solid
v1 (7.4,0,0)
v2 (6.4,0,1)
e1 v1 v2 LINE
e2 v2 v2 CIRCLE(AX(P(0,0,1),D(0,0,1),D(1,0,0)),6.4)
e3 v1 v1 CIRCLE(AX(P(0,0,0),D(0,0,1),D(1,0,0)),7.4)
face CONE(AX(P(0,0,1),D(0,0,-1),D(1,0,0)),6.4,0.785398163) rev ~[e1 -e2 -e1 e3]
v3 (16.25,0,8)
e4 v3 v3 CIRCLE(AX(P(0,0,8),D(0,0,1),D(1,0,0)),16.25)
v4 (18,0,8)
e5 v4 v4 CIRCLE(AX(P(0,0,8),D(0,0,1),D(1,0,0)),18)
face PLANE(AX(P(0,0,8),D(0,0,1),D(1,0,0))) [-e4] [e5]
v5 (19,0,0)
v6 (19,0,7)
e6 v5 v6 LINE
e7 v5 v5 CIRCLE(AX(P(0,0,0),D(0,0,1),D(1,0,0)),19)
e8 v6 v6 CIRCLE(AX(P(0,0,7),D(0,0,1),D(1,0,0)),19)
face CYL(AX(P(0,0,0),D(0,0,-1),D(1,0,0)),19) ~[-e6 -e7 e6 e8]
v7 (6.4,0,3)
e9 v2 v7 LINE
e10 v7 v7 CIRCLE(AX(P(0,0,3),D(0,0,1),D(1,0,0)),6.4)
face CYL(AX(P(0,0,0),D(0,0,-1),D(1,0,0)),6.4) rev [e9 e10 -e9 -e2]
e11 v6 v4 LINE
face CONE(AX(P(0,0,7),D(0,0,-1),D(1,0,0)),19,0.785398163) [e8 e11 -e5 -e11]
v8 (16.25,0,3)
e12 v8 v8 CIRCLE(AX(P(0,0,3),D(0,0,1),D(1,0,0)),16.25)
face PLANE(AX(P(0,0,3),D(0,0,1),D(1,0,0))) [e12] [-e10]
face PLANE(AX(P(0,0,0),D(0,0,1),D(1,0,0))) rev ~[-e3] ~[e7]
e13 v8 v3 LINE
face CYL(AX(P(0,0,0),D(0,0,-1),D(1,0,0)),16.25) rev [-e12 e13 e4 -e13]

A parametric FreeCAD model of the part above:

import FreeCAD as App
import Part
import Sketcher


def edges_at(feature, points):
    """Names of the edges that pass closest to the given points."""
    edges = feature.Shape.Edges
    near = lambda p: min(range(len(edges)), key=lambda i: edges[i].distToShape(Part.Vertex(*p))[0])
    return sorted({f"Edge{near(p) + 1}" for p in points})

doc = App.newDocument("Part")
body = doc.addObject("PartDesign::Body", "Body")

sketch1 = body.newObject("Sketcher::SketchObject", "Sketch")
sketch1.AttachmentSupport = (doc.getObject("XY_Plane"), [""])
sketch1.MapMode = "FlatFace"
sketch1.addGeometry([
    Part.Circle(App.Vector(0, 0, 0), App.Vector(0, 0, 1), 19),
    Part.Circle(App.Vector(0, 0, 0), App.Vector(0, 0, 1), 16),
], False)
sketch1.addConstraint([
    Sketcher.Constraint("Coincident", 0, 3, -1, 1),
    Sketcher.Constraint("Coincident", 1, 3, -1, 1),
    Sketcher.Constraint("Diameter", 0, 38.0),
    Sketcher.Constraint("Diameter", 1, 32.5),
])
pad1 = body.newObject("PartDesign::Pad", "Pad")
pad1.Profile = sketch1
pad1.Length = 8

sketch2 = body.newObject("Sketcher::SketchObject", "Sketch001")
sketch2.AttachmentSupport = (doc.getObject("XY_Plane"), [""])
sketch2.MapMode = "FlatFace"
sketch2.addGeometry([
    Part.Circle(App.Vector(0, 0, 0), App.Vector(0, 0, 1), 16),
    Part.Circle(App.Vector(0, 0, 0), App.Vector(0, 0, 1), 6),
], False)
sketch2.addConstraint([
    Sketcher.Constraint("Coincident", 0, 3, -1, 1),
    Sketcher.Constraint("Coincident", 1, 3, -1, 1),
    Sketcher.Constraint("Diameter", 0, 32.5),
    Sketcher.Constraint("Diameter", 1, 12.8),
])
pad2 = body.newObject("PartDesign::Pad", "Pad001")
pad2.Profile = sketch2
pad2.Length = 3
doc.recompute()

chamfer = body.newObject("PartDesign::Chamfer", "Chamfer")
chamfer.Base = (pad2, edges_at(pad2, [(-17.714, -6.871, 8)]))
chamfer.Size = 1
doc.recompute()

chamfer2 = body.newObject("PartDesign::Chamfer", "Chamfer001")
chamfer2.Base = (chamfer, edges_at(chamfer, [(-5.967, 2.314, 0)]))
chamfer2.Size = 1

doc.recompute()
